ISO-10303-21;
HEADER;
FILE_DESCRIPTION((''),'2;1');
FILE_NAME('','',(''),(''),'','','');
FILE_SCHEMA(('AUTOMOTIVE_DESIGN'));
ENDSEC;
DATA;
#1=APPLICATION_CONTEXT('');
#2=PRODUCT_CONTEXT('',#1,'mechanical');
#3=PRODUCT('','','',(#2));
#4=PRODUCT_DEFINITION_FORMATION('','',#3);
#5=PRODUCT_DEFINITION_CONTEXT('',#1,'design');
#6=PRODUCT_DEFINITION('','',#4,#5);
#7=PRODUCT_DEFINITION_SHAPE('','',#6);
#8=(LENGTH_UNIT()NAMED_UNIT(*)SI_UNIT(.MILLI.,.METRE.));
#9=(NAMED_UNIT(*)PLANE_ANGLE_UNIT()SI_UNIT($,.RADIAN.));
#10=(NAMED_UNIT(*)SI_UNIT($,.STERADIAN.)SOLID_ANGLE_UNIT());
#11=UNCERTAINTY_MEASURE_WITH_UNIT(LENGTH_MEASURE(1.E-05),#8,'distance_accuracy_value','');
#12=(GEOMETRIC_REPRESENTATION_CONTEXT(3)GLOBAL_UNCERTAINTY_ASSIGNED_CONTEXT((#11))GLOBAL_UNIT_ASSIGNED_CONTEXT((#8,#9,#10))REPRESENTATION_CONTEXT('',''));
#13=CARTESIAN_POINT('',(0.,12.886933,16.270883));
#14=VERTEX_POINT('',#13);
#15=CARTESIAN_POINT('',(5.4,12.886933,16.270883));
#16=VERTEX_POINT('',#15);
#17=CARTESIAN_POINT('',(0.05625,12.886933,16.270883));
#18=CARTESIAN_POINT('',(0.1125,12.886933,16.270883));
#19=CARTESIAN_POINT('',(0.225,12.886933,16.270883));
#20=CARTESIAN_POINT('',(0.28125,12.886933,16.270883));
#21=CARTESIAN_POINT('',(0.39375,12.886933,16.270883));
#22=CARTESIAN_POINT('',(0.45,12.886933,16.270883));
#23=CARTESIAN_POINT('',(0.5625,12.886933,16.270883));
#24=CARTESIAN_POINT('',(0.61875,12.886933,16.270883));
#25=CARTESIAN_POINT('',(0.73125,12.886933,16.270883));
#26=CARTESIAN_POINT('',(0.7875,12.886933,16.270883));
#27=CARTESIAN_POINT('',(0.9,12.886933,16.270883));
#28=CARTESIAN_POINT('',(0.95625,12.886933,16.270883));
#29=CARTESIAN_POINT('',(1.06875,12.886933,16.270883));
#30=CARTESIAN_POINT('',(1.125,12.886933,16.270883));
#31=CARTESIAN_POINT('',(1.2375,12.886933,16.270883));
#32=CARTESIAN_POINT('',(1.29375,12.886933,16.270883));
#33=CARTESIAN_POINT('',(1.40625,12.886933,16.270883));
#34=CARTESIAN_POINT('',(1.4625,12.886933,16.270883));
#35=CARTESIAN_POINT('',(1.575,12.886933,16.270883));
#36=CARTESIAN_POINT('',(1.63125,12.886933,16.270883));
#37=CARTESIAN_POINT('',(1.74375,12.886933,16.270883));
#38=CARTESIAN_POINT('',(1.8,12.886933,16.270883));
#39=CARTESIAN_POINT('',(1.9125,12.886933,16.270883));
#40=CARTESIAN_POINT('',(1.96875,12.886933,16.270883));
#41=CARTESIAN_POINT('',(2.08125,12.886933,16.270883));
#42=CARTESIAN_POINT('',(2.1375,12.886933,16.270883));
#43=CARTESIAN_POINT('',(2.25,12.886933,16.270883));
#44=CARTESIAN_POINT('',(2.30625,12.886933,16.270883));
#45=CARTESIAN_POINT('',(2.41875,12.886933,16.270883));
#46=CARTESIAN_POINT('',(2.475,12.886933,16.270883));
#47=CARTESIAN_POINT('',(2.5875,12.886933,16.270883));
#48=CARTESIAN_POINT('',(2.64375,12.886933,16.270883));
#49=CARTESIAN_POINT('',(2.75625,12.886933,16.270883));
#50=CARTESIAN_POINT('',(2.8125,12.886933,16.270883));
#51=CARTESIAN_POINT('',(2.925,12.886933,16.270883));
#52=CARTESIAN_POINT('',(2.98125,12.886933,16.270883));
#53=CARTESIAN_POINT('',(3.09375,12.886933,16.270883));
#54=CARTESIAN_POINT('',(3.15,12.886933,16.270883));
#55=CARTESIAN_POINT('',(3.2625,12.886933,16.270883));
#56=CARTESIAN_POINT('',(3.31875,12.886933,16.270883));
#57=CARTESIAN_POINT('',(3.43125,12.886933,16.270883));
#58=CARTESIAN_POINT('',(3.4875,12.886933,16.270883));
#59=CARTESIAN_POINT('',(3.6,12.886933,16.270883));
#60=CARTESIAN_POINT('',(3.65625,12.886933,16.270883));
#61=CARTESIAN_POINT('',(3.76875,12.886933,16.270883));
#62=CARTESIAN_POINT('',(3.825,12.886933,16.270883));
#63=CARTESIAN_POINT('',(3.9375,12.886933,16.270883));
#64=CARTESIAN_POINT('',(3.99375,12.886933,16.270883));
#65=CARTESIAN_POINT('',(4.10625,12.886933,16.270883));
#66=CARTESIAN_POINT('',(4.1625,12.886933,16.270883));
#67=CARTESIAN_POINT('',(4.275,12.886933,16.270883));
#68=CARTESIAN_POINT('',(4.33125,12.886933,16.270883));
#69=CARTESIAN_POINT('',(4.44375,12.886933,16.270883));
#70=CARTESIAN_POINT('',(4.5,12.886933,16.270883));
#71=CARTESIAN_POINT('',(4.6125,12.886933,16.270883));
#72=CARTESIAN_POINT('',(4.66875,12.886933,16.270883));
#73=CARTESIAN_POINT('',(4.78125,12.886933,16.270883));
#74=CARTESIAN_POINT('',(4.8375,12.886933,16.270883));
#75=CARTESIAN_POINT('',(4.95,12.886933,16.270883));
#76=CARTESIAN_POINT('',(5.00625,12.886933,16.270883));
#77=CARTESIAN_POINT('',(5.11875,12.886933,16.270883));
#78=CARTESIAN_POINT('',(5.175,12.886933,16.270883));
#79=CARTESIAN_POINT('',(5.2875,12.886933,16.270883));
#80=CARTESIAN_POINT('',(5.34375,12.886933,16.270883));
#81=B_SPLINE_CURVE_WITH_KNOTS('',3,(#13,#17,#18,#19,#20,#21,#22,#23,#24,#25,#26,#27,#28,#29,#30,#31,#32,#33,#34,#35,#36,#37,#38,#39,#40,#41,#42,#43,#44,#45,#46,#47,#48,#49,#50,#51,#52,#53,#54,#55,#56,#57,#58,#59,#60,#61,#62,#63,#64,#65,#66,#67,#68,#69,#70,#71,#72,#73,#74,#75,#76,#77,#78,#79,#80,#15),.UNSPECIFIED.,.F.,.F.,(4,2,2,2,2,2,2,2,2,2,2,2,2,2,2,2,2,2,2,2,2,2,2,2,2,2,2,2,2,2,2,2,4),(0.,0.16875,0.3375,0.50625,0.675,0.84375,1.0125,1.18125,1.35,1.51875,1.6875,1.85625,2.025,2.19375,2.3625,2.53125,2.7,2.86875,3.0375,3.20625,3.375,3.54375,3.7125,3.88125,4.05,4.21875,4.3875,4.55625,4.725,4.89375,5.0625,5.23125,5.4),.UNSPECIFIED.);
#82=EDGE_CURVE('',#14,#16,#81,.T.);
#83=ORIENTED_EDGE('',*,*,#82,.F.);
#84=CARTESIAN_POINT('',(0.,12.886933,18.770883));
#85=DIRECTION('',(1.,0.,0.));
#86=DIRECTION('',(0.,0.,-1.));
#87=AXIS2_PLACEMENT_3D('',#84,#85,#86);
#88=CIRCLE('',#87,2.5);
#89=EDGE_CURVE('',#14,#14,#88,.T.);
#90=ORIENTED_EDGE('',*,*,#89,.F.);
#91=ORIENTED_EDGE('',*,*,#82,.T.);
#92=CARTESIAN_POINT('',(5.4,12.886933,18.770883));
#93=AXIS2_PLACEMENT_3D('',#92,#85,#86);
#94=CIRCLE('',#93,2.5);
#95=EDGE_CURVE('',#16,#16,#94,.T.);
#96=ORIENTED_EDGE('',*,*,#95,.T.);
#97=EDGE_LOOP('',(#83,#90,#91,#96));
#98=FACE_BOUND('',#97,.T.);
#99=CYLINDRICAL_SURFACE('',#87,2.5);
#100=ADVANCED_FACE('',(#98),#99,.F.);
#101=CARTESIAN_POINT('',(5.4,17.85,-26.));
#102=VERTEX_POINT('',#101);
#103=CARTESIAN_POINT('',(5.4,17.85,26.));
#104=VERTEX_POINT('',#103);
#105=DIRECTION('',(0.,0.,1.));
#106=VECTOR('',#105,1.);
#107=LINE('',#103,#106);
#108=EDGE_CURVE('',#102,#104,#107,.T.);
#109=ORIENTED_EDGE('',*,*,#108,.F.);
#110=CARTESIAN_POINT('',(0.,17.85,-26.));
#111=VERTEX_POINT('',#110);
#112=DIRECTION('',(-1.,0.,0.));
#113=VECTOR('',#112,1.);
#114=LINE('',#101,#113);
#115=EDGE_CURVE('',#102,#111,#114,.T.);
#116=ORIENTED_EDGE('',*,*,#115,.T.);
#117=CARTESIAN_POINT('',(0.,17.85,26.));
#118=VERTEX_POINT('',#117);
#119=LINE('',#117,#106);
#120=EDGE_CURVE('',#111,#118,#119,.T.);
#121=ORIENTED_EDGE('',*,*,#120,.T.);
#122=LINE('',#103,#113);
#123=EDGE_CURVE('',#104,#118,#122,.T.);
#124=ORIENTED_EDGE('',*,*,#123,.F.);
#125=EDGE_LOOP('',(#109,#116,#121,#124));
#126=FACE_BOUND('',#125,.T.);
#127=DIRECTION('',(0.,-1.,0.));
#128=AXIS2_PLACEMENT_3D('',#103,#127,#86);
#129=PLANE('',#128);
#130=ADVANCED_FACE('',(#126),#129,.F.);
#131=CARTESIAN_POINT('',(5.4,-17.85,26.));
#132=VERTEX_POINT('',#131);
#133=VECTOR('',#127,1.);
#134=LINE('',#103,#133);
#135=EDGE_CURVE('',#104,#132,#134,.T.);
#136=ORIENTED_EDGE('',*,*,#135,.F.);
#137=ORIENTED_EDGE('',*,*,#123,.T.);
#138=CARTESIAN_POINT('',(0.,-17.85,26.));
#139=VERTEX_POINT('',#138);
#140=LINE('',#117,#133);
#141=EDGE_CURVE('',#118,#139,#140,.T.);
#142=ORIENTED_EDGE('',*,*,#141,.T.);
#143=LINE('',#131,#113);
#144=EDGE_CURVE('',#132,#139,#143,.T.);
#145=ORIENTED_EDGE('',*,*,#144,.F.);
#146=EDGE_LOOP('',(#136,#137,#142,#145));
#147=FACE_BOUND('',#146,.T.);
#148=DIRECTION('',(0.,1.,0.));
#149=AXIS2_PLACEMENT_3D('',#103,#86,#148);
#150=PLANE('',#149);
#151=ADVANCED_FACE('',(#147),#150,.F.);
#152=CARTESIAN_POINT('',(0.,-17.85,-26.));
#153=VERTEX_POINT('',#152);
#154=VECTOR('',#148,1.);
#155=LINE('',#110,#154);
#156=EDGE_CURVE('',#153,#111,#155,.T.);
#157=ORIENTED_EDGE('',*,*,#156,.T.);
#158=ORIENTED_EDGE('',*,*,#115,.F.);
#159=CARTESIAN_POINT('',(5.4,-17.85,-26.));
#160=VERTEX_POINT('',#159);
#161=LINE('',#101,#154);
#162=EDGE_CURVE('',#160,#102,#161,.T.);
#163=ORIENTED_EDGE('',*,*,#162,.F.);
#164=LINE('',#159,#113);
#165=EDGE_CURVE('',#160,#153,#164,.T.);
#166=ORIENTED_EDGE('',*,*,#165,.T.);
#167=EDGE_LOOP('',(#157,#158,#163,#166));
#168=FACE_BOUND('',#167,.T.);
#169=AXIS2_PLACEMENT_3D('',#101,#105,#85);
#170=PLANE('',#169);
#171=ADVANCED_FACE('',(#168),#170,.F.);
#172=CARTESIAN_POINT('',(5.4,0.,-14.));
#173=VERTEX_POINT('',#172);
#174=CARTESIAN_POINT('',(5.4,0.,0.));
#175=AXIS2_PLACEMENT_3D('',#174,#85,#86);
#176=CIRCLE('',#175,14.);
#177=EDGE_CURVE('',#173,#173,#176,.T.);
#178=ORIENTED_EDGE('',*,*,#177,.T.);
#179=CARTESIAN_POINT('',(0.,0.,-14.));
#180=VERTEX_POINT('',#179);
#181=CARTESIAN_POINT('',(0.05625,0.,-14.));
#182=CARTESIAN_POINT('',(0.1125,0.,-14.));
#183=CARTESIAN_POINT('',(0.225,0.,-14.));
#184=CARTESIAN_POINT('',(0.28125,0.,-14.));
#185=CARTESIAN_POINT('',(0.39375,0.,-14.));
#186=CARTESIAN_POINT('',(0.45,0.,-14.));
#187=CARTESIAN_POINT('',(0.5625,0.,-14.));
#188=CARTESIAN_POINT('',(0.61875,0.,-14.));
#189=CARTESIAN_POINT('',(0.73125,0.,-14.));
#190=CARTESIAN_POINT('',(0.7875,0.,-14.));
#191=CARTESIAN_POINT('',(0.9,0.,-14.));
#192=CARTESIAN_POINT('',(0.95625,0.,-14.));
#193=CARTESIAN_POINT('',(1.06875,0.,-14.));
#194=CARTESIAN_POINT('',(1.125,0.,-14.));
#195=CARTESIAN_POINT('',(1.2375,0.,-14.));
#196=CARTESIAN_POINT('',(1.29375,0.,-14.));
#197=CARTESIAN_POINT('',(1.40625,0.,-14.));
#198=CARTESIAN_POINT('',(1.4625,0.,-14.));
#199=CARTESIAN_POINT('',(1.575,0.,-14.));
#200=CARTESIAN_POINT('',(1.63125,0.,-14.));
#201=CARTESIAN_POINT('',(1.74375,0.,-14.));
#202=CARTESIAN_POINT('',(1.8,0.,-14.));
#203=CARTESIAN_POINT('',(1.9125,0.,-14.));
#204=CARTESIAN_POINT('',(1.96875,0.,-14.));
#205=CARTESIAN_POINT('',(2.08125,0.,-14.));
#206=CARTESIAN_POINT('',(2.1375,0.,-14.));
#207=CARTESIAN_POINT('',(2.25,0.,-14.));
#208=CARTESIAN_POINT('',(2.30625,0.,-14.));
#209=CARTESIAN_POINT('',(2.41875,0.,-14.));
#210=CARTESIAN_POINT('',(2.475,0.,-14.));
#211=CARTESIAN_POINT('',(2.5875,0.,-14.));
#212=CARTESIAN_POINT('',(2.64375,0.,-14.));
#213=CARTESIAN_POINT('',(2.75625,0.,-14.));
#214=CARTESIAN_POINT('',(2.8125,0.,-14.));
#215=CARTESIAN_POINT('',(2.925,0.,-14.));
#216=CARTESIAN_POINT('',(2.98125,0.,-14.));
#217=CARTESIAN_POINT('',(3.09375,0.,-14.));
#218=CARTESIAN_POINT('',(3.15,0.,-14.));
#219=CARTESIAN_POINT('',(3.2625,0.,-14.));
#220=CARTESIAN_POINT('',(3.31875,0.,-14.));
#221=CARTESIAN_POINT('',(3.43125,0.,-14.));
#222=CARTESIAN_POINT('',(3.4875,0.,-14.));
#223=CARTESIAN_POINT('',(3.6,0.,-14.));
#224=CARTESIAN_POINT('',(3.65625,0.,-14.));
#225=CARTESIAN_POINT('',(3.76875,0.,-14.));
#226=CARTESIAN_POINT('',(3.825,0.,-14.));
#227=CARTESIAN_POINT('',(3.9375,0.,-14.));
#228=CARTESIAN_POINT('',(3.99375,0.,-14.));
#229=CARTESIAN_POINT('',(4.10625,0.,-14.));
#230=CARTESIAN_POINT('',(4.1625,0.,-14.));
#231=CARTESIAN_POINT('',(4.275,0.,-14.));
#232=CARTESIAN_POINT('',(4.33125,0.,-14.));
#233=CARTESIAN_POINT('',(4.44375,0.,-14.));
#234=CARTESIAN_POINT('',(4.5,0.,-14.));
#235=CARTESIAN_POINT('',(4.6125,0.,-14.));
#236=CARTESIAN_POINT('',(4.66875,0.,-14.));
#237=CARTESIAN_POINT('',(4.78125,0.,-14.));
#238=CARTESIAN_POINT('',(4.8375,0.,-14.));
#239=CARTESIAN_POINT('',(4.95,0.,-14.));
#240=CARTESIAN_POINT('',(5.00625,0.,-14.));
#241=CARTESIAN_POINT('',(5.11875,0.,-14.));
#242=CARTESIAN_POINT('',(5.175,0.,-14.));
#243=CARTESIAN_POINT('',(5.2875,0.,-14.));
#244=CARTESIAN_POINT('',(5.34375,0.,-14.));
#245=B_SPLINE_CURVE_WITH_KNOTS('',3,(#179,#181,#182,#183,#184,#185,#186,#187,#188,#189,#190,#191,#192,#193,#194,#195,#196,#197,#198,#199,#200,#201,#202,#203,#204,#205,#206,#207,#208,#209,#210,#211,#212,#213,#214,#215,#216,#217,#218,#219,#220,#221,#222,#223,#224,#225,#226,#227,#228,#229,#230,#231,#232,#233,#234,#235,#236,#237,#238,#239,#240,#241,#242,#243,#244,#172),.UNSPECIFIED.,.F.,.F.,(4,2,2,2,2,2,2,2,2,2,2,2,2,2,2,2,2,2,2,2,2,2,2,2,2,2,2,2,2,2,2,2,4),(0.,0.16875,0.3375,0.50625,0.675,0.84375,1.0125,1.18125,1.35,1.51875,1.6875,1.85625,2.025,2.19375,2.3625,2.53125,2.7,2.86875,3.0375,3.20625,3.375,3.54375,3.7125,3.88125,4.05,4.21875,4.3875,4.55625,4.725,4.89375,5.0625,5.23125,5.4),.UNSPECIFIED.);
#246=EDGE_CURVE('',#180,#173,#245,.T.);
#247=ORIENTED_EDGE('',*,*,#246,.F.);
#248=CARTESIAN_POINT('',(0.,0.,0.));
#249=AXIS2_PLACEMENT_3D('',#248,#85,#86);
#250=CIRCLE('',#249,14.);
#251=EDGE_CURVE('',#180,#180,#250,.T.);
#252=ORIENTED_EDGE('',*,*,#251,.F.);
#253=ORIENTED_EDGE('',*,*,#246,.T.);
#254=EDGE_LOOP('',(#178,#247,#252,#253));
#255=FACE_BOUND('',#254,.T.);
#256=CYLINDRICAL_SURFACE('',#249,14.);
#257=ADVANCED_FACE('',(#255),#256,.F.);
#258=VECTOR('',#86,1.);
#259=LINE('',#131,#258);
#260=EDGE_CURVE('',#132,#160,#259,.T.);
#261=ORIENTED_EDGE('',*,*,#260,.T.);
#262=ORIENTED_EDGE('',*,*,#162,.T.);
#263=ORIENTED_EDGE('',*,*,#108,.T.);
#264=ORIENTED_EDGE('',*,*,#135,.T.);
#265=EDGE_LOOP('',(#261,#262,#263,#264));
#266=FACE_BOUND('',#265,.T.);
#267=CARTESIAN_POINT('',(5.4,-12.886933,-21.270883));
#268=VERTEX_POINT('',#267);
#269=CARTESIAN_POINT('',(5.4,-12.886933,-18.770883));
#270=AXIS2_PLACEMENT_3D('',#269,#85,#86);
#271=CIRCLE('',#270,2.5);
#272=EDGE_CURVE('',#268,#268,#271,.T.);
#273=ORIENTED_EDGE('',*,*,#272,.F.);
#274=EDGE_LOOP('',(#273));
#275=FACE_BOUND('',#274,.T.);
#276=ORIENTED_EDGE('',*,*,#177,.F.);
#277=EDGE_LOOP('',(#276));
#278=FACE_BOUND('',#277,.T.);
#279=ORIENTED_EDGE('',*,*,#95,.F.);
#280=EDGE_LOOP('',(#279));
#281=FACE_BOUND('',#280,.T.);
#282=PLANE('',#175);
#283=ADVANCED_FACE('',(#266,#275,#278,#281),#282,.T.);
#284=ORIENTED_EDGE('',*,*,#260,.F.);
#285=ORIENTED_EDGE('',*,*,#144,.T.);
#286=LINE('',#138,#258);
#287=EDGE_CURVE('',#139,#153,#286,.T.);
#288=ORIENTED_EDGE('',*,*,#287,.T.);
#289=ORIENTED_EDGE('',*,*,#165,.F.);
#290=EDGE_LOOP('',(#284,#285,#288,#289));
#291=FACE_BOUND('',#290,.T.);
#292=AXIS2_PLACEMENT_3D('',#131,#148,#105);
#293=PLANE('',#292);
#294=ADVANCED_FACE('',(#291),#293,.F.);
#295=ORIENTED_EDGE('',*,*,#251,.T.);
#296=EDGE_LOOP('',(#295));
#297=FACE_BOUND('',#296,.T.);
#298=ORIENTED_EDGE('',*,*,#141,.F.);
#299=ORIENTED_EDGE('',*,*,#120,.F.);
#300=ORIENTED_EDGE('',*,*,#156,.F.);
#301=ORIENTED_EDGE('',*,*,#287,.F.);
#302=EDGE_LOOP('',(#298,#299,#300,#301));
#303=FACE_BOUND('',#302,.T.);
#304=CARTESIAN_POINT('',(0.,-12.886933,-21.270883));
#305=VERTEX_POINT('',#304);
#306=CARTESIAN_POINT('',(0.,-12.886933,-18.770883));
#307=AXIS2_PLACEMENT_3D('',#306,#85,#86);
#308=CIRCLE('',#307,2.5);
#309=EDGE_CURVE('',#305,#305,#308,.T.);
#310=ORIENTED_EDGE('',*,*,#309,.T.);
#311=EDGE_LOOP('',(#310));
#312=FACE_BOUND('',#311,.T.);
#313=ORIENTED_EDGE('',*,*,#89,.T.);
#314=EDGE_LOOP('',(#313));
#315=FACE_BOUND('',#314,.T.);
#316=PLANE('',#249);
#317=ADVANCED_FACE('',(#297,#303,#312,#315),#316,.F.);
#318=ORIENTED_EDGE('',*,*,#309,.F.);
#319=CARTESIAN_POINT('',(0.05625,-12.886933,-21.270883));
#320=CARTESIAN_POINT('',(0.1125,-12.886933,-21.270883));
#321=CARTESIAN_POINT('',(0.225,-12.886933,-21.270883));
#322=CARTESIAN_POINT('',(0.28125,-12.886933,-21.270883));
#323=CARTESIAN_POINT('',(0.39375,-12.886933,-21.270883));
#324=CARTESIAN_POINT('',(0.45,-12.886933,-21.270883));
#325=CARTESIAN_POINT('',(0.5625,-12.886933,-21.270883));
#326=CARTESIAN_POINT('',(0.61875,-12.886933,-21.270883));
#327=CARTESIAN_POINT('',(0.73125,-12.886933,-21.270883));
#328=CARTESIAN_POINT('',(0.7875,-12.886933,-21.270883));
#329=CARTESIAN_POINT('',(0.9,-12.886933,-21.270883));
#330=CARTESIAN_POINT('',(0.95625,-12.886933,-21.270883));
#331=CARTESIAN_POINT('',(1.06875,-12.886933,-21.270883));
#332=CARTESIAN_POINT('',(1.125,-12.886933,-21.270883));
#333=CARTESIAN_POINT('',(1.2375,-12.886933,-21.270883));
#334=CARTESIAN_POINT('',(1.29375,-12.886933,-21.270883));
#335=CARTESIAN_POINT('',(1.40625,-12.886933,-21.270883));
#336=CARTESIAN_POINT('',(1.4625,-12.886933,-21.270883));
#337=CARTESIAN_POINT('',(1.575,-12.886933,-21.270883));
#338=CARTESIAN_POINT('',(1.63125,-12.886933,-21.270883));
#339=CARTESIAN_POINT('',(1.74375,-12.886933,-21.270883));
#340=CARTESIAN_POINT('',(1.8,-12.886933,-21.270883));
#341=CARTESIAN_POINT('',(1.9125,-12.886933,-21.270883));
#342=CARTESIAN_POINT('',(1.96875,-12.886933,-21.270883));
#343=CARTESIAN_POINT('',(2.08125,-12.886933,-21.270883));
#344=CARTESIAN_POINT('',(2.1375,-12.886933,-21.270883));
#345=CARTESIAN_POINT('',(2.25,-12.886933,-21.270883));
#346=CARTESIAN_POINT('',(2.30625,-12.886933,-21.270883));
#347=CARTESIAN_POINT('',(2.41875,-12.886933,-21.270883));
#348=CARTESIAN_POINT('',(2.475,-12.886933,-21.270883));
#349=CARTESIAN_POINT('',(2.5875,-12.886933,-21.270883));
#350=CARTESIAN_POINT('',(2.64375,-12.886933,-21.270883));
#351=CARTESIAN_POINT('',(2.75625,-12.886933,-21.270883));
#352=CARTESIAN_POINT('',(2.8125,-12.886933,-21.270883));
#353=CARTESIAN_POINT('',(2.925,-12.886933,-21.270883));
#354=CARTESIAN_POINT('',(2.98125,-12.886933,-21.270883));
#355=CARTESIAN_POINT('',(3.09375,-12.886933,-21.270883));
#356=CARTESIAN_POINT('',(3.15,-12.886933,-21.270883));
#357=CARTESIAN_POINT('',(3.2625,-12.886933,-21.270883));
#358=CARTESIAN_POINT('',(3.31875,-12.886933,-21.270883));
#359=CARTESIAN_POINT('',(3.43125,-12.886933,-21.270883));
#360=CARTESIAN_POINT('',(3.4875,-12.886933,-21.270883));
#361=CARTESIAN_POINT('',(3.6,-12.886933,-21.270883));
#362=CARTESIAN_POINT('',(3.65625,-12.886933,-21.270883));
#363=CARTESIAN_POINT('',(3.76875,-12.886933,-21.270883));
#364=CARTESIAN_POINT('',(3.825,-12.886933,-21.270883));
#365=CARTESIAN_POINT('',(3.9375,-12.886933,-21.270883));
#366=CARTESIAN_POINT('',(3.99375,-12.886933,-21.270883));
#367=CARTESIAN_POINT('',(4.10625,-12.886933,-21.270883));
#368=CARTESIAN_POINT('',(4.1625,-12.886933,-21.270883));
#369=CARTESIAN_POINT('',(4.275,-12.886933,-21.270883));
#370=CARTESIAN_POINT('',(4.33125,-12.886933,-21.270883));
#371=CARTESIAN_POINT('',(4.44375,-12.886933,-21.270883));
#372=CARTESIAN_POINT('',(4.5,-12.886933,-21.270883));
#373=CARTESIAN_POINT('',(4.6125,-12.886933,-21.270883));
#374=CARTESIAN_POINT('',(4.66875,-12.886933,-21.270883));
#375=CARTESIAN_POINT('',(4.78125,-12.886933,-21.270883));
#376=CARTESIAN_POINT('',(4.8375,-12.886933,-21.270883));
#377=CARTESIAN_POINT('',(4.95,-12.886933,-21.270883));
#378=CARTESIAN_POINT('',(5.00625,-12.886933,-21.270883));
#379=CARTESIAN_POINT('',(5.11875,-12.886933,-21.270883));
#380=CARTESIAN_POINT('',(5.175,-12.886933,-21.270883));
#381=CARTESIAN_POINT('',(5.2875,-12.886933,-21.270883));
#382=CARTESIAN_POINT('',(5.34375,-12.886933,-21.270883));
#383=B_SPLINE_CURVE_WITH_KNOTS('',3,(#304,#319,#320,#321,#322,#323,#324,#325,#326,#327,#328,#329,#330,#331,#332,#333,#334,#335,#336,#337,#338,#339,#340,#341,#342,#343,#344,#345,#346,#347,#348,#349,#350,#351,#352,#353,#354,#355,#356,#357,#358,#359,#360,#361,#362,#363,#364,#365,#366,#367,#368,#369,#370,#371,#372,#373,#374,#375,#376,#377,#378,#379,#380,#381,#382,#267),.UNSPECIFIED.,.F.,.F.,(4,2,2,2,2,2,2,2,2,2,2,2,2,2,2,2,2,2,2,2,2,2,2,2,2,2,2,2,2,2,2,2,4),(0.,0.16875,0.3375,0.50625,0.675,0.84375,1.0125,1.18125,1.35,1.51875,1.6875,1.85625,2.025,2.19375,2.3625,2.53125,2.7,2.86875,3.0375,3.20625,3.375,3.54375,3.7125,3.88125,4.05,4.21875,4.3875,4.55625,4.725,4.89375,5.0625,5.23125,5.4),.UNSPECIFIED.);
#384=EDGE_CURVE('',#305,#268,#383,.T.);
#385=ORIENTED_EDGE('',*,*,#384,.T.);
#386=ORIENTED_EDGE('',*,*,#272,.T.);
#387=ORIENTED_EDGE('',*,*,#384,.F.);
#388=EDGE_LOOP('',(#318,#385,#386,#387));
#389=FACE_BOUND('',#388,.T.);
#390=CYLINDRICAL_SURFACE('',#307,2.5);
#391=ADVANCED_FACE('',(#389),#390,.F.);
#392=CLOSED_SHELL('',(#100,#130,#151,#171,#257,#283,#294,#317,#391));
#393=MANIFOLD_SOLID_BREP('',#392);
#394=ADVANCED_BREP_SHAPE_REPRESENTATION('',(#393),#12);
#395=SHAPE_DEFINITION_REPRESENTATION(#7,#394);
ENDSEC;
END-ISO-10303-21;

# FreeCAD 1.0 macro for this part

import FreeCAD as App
import Part
import Sketcher
from FreeCAD import Vector


def add_polygon(sketch, points):
    """Adds a closed chain of lines whose ends are joined by coincident constraints."""
    first, n = sketch.GeometryCount, len(points)
    for a, b in zip(points, points[1:] + points[:1]):
        sketch.addGeometry(Part.LineSegment(App.Vector(*a, 0), App.Vector(*b, 0)), False)
    for i in range(n):
        sketch.addConstraint(Sketcher.Constraint("Coincident", first + i, 2, first + (i + 1) % n, 1))

doc = App.newDocument("Part")
params = doc.addObject("Spreadsheet::Sheet", "Params")
for row, (alias, value) in enumerate([
    ("sketch1_height", "52 mm"),
    ("sketch1_width", "35.7 mm"),
    ("pad1_length", "5.4 mm"),
    ("sketch2_diameter", "28 mm"),
    ("sketch2_diameter2", "5 mm"),
    ("pocket1_length", "5.4 mm"),
], start=1):
    params.set(f"A{row}", alias)
    params.set(f"B{row}", "=" + value)
    params.setAlias(f"B{row}", alias)

body = doc.addObject("PartDesign::Body", "Body")

sketch1 = body.newObject("Sketcher::SketchObject", "Sketch")
sketch1.AttachmentSupport = (doc.getObject("YZ_Plane"), [""])
sketch1.MapMode = "FlatFace"
add_polygon(sketch1, [(17.85, 26), (-17.85, 26), (-17.85, -26), (17.85, -26)])
sketch1.addConstraint([
    Sketcher.Constraint("Horizontal", 0),
    Sketcher.Constraint("Vertical", 1),
    Sketcher.Constraint("Horizontal", 2),
    Sketcher.Constraint("Vertical", 3),
    Sketcher.Constraint("Symmetric", 0, 2, 2, 2, -1, 1),
    Sketcher.Constraint("DistanceY", 1, 2, 1, 1, 52.0),
    Sketcher.Constraint("DistanceX", 0, 2, 0, 1, 35.7),
])
sketch1.setExpression("Constraints[9]", "Params.sketch1_height")
sketch1.setExpression("Constraints[10]", "Params.sketch1_width")
pad1 = body.newObject("PartDesign::Pad", "Pad")
pad1.Profile = sketch1
pad1.setExpression("Length", "Params.pad1_length")

sketch2 = body.newObject("Sketcher::SketchObject", "Sketch001")
sketch2.AttachmentSupport = (doc.getObject("YZ_Plane"), [""])
sketch2.MapMode = "FlatFace"
sketch2.AttachmentOffset = App.Placement(Vector(0, 0, 5.4), App.Rotation())
sketch2.addGeometry([
    Part.Circle(Vector(0, 0, 0), Vector(0, 0, 1), 14),
    Part.Circle(Vector(12.886933, 18.770883, 0), Vector(0, 0, 1), 2.5),
    Part.Circle(Vector(-12.886933, -18.770883, 0), Vector(0, 0, 1), 2.5),
], False)
sketch2.addConstraint([
    Sketcher.Constraint("Coincident", 0, 3, -1, 1),
    Sketcher.Constraint("Equal", 1, 2),
    Sketcher.Constraint("Symmetric", 1, 3, 2, 3, -1, 1),
    Sketcher.Constraint("Diameter", 0, 28.0),
    Sketcher.Constraint("Diameter", 1, 5.0),
    Sketcher.Constraint("DistanceX", -1, 1, 1, 3, 12.886933),
    Sketcher.Constraint("DistanceY", -1, 1, 1, 3, 18.770883),
])
sketch2.setExpression("Constraints[3]", "Params.sketch2_diameter")
sketch2.setExpression("Constraints[4]", "Params.sketch2_diameter2")
pocket1 = body.newObject("PartDesign::Pocket", "Pocket")
pocket1.Profile = sketch2
pocket1.setExpression("Length", "Params.pocket1_length")

doc.recompute()
